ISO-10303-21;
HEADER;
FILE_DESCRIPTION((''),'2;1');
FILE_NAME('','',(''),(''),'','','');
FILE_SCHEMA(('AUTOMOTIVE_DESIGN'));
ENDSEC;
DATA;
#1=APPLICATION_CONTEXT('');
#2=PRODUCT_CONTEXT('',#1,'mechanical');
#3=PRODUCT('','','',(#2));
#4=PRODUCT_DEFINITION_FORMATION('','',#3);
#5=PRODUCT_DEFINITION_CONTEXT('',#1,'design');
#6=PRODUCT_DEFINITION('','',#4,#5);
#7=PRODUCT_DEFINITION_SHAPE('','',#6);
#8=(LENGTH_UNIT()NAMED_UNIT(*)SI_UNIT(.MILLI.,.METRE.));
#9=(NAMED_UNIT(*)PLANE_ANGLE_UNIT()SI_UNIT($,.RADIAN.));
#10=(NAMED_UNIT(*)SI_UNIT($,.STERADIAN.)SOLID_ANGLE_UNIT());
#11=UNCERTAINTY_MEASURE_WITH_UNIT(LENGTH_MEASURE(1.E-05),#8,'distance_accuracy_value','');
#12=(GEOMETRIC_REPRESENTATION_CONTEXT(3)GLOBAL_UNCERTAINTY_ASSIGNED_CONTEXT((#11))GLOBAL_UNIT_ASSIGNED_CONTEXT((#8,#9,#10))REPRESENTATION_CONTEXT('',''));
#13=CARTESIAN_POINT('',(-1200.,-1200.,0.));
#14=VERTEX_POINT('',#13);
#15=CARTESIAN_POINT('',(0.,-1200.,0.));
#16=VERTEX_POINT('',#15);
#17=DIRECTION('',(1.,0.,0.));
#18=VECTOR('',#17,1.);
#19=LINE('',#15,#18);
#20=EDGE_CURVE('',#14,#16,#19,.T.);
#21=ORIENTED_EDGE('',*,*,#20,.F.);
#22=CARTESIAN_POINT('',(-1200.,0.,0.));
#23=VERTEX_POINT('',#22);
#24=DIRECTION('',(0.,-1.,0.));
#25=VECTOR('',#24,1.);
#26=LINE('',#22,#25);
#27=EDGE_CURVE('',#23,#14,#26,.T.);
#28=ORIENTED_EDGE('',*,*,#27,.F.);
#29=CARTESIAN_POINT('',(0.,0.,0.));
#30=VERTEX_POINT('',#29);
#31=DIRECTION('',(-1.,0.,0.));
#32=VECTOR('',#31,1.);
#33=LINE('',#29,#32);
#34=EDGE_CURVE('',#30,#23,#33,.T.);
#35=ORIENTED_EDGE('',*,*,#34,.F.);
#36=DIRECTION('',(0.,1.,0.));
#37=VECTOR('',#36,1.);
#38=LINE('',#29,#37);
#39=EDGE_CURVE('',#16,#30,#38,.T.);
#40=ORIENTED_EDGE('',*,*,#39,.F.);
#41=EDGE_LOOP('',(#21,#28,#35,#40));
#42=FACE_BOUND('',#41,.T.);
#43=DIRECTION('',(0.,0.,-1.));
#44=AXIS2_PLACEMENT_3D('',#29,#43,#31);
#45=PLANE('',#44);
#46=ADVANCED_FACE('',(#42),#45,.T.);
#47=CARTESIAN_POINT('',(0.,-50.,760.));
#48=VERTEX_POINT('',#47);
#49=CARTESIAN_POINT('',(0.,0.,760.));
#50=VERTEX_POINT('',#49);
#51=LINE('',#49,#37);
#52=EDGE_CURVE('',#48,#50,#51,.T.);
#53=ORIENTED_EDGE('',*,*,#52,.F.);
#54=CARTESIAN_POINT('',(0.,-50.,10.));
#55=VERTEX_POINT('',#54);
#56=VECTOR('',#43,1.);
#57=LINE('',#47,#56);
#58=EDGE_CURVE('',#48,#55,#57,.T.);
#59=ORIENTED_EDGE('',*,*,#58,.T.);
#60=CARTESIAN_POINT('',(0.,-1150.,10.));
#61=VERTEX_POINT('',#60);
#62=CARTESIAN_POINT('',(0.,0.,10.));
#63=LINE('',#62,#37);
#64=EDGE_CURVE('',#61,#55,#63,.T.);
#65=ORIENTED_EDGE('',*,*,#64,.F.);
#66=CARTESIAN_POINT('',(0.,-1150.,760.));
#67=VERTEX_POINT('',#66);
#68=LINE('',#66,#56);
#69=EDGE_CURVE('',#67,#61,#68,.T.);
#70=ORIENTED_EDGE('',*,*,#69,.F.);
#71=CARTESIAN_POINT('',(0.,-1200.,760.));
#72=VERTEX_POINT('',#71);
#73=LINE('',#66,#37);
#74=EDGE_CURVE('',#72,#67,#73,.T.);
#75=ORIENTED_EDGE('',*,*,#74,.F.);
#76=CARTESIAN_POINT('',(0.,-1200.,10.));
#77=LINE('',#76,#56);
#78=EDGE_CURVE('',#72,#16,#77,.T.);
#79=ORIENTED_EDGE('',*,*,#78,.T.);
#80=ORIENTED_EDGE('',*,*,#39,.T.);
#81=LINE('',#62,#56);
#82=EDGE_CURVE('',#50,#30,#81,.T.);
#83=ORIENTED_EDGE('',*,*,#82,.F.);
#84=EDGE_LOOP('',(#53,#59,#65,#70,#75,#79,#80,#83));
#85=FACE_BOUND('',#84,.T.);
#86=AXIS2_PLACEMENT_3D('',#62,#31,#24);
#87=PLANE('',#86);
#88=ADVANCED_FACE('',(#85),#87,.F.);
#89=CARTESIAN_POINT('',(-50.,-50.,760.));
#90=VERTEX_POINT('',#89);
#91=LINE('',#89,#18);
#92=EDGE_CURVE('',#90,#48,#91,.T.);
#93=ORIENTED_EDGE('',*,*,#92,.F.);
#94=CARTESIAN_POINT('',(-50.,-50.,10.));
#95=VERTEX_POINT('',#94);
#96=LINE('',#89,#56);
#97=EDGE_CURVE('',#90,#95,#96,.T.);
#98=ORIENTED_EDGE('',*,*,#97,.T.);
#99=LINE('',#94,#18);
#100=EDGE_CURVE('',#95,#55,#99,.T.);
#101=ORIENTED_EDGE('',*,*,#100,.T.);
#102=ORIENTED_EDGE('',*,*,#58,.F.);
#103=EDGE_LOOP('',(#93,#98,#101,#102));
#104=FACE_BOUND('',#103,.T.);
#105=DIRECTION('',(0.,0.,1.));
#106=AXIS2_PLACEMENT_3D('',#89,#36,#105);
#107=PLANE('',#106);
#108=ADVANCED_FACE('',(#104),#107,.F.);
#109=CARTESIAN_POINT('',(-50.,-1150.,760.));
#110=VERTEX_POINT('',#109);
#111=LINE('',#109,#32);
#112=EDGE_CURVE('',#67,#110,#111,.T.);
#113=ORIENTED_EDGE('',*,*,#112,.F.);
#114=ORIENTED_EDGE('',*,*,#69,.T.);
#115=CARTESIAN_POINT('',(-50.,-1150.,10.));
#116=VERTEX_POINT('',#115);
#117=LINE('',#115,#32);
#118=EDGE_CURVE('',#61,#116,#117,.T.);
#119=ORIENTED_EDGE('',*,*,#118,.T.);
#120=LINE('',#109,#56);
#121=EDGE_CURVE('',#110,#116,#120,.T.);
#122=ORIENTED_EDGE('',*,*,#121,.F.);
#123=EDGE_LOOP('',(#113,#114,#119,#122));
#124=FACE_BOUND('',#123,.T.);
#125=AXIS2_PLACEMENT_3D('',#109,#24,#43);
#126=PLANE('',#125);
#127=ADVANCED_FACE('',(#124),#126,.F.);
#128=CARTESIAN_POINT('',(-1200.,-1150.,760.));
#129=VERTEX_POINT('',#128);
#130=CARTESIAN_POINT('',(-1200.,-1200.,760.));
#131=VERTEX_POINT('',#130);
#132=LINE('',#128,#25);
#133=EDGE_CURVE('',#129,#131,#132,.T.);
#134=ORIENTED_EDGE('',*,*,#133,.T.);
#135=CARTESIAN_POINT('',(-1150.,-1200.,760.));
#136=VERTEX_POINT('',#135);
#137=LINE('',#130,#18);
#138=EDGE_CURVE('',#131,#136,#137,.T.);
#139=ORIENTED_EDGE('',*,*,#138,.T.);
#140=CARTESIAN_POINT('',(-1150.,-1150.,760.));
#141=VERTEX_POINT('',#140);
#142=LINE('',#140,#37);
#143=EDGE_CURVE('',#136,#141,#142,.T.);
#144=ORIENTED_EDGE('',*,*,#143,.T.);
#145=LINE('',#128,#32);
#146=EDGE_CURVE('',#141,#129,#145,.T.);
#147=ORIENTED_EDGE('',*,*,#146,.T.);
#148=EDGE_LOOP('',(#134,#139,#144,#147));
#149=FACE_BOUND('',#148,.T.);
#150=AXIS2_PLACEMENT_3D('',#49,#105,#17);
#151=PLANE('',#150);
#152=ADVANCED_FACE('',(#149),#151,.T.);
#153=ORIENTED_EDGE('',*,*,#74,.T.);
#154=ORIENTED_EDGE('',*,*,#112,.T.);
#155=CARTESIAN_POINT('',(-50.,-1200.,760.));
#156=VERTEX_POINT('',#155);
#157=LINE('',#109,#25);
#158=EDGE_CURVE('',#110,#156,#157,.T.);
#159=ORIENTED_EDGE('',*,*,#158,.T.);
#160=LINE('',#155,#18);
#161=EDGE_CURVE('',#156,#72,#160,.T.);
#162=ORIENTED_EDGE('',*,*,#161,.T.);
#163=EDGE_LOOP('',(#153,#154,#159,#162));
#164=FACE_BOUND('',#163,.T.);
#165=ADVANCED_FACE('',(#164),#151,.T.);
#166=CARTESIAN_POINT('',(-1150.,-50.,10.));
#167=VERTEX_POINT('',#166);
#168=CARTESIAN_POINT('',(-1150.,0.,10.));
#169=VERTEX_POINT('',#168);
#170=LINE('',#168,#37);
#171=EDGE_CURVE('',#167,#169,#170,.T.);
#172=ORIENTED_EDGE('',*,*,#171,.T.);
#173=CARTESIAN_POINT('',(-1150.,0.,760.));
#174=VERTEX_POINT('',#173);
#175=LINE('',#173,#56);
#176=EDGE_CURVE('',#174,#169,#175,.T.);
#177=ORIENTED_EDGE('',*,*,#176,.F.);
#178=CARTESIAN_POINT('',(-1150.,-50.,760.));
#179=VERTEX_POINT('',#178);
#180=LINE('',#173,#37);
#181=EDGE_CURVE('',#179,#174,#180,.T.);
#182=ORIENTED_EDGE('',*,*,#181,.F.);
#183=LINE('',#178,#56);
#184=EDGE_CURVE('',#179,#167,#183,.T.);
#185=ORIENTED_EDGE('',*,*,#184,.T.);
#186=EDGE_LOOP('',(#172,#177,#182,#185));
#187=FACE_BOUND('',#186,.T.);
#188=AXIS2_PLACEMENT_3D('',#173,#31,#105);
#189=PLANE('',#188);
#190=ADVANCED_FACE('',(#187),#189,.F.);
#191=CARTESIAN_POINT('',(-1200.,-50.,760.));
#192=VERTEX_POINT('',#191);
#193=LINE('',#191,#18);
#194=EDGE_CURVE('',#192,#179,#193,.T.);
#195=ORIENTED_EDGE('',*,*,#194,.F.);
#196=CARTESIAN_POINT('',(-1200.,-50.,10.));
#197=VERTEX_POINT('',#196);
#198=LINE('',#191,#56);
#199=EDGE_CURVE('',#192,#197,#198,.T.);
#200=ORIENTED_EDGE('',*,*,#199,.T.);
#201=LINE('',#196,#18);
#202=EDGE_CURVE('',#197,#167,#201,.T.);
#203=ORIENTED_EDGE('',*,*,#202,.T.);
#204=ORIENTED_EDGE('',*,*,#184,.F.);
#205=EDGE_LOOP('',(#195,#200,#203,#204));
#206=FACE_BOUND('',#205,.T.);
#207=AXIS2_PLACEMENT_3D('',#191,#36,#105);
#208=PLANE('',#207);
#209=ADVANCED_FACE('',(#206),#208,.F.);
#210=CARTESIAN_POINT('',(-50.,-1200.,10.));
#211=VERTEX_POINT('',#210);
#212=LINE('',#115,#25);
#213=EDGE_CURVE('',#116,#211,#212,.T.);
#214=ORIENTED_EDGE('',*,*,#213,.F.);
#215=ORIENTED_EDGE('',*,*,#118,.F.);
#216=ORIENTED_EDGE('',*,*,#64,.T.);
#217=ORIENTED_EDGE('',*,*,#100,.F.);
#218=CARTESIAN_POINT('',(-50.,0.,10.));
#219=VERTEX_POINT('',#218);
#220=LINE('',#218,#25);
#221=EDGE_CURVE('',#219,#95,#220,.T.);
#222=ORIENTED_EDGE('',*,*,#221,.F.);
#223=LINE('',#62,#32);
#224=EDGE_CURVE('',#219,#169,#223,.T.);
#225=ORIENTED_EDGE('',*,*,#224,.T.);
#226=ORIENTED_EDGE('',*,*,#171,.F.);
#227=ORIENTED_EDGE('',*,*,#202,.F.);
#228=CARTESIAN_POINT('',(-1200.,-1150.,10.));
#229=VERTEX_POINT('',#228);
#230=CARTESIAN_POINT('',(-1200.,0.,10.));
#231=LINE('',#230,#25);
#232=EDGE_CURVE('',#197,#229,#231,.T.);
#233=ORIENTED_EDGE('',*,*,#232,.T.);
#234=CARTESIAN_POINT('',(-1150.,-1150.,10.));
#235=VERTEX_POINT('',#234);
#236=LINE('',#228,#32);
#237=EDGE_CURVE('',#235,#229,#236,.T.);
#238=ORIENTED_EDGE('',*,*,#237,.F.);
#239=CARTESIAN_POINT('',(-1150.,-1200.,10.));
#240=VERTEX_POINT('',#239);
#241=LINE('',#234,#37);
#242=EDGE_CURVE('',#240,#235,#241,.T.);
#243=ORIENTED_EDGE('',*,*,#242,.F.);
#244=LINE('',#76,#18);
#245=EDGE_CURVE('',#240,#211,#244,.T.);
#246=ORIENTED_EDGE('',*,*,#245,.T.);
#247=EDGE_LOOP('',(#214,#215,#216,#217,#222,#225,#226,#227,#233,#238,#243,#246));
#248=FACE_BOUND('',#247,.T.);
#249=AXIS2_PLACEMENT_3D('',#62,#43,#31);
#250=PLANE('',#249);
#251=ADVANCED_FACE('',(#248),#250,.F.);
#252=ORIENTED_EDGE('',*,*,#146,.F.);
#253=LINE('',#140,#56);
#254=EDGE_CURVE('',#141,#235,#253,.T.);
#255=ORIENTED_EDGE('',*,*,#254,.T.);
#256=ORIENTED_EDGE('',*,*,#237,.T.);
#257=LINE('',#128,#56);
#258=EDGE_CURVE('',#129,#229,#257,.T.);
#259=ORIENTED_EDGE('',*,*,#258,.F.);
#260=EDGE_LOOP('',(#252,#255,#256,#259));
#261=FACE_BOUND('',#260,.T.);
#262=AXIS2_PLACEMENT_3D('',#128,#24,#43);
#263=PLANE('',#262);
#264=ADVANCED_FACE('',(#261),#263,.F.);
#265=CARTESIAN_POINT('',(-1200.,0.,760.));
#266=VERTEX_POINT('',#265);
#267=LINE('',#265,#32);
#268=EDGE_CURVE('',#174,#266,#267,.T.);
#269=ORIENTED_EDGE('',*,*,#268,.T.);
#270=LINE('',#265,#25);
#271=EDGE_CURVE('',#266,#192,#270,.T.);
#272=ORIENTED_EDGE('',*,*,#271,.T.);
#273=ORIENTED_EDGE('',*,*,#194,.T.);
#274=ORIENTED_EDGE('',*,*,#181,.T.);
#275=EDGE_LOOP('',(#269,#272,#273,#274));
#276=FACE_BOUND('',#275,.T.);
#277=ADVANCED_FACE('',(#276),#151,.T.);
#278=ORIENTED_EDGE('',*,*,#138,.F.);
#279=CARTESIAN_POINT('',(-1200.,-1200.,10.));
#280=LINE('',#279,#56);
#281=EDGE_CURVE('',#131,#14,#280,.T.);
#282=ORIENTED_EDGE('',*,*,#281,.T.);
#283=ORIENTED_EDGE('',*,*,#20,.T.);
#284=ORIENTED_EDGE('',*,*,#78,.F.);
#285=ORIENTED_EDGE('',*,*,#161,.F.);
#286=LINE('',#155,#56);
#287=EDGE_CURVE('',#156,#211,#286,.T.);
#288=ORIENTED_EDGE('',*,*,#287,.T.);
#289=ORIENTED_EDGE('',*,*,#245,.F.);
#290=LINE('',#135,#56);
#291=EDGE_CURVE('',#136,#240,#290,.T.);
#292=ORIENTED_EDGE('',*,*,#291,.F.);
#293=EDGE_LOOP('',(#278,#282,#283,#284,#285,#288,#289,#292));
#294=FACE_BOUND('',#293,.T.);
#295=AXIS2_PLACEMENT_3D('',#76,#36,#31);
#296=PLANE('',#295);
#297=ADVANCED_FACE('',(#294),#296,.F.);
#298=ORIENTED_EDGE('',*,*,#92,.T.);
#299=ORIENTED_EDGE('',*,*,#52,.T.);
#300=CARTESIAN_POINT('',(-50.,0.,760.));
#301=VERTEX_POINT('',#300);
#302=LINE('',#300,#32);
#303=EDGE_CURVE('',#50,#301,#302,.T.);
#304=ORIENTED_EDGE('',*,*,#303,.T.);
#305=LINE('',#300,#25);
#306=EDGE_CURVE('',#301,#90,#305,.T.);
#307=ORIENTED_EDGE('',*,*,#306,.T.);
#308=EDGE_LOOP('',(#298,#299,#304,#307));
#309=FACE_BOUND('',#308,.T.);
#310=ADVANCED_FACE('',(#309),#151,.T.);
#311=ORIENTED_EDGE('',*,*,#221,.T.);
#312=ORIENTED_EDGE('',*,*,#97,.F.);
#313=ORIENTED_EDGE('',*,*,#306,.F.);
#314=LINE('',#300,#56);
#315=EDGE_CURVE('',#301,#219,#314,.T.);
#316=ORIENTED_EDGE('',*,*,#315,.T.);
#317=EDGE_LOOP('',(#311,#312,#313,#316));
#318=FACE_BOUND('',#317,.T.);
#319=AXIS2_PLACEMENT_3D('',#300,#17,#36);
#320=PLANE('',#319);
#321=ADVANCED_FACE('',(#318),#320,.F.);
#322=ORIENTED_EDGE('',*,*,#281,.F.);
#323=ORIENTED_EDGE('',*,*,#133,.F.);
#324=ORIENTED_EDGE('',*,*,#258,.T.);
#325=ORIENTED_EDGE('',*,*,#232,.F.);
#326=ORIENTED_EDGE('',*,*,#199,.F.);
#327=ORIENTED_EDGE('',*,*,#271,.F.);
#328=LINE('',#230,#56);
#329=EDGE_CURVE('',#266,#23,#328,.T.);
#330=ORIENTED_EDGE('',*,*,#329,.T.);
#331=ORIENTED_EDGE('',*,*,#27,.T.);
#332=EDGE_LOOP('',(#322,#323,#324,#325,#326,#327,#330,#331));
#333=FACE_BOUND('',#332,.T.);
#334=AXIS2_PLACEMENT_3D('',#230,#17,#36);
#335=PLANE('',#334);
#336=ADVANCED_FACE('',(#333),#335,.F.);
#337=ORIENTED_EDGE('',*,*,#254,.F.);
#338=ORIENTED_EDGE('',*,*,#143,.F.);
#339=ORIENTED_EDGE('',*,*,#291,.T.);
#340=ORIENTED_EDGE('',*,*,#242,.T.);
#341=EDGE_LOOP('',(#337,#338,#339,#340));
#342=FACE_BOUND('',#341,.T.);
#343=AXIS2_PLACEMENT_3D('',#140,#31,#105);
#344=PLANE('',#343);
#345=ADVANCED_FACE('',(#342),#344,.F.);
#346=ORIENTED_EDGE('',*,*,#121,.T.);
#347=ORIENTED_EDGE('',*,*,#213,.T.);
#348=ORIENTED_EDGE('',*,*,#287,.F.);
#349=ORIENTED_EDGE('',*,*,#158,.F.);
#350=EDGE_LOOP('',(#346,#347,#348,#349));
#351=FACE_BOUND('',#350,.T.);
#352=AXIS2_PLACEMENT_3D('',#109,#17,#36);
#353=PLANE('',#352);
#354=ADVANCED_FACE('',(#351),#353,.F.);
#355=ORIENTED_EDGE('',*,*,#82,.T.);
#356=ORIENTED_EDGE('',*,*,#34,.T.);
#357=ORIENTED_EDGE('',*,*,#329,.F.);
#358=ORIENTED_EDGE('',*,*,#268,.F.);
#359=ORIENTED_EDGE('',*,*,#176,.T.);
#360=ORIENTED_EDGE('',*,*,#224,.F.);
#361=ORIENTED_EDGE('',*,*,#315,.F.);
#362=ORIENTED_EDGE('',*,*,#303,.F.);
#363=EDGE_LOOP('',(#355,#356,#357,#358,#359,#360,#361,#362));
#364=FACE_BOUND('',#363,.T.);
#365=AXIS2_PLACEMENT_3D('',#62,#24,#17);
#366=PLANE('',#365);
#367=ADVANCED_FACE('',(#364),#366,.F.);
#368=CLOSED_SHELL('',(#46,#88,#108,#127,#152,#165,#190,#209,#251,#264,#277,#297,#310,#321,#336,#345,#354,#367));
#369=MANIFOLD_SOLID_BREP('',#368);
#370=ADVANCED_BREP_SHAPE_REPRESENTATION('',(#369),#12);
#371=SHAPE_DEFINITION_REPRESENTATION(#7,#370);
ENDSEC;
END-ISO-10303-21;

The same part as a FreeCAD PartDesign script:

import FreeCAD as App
import Part
import Sketcher
from FreeCAD import Vector

doc = App.newDocument("Part")
body = doc.addObject("PartDesign::Body", "Body")

# Sketch on XY plane
sketch1 = body.newObject("Sketcher::SketchObject", "Sketch")
sketch1.AttachmentSupport = (doc.getObject("XY_Plane"), [""])
sketch1.MapMode = "FlatFace"
sketch1.addGeometry([
    Part.LineSegment(Vector(-1200, 0, 0), Vector(-1200, -1200, 0)),
    Part.LineSegment(Vector(-1200, -1200, 0), Vector(0, -1200, 0)),
    Part.LineSegment(Vector(0, -1200, 0), Vector(0, 0, 0)),
    Part.LineSegment(Vector(0, 0, 0), Vector(-1200, 0, 0)),
], False)
sketch1.addConstraint([
    Sketcher.Constraint("Coincident", 0, 2, 1, 1),
    Sketcher.Constraint("Coincident", 1, 2, 2, 1),
    Sketcher.Constraint("Coincident", 2, 2, 3, 1),
    Sketcher.Constraint("Coincident", 3, 2, 0, 1),
    Sketcher.Constraint("Vertical", 0),
    Sketcher.Constraint("Horizontal", 1),
    Sketcher.Constraint("Vertical", 2),
    Sketcher.Constraint("Horizontal", 3),
    Sketcher.Constraint("Coincident", 2, 2, -1, 1),
    Sketcher.Constraint("Equal", 3, 0),
    Sketcher.Constraint("DistanceX", 1, 1, 1, 2, 1200.0),
])
pad1 = body.newObject("PartDesign::Pad", "Pad")
pad1.Profile = sketch1
pad1.Length = 10

# Sketch on XY plane
sketch2 = body.newObject("Sketcher::SketchObject", "Sketch001")
sketch2.AttachmentSupport = (doc.getObject("XY_Plane"), [""])
sketch2.MapMode = "FlatFace"
sketch2.AttachmentOffset = App.Placement(Vector(0, 0, 10), App.Rotation())
sketch2.addGeometry([
    Part.LineSegment(Vector(-1200, -1150, 0), Vector(-1200, -1200, 0)),  # 0
    Part.LineSegment(Vector(-1200, -1200, 0), Vector(-1150, -1200, 0)),  # 1
    Part.LineSegment(Vector(-1150, -1200, 0), Vector(-1150, -1150, 0)),  # 2
    Part.LineSegment(Vector(-1150, -1150, 0), Vector(-1200, -1150, 0)),  # 3
    Part.LineSegment(Vector(-1200, 0, 0), Vector(-1200, -50, 0)),  # 4
    Part.LineSegment(Vector(-1200, -50, 0), Vector(-1150, -50, 0)),  # 5
    Part.LineSegment(Vector(-1150, -50, 0), Vector(-1150, 0, 0)),  # 6
    Part.LineSegment(Vector(-1150, 0, 0), Vector(-1200, 0, 0)),  # 7
    Part.LineSegment(Vector(-50, -1150, 0), Vector(-50, -1200, 0)),  # 8
    Part.LineSegment(Vector(-50, -1200, 0), Vector(0, -1200, 0)),  # 9
    Part.LineSegment(Vector(0, -1200, 0), Vector(0, -1150, 0)),  # 10
    Part.LineSegment(Vector(0, -1150, 0), Vector(-50, -1150, 0)),  # 11
    Part.LineSegment(Vector(-50, 0, 0), Vector(-50, -50, 0)),  # 12
    Part.LineSegment(Vector(-50, -50, 0), Vector(0, -50, 0)),  # 13
    Part.LineSegment(Vector(0, -50, 0), Vector(0, 0, 0)),  # 14
    Part.LineSegment(Vector(0, 0, 0), Vector(-50, 0, 0)),  # 15
], False)
sketch2.addConstraint([
    Sketcher.Constraint("Coincident", 0, 2, 1, 1),
    Sketcher.Constraint("Coincident", 1, 2, 2, 1),
    Sketcher.Constraint("Coincident", 2, 2, 3, 1),
    Sketcher.Constraint("Coincident", 3, 2, 0, 1),
    Sketcher.Constraint("Coincident", 4, 2, 5, 1),
    Sketcher.Constraint("Coincident", 5, 2, 6, 1),
    Sketcher.Constraint("Coincident", 6, 2, 7, 1),
    Sketcher.Constraint("Coincident", 7, 2, 4, 1),
    Sketcher.Constraint("Coincident", 8, 2, 9, 1),
    Sketcher.Constraint("Coincident", 9, 2, 10, 1),
    Sketcher.Constraint("Coincident", 10, 2, 11, 1),
    Sketcher.Constraint("Coincident", 11, 2, 8, 1),
    Sketcher.Constraint("Coincident", 12, 2, 13, 1),
    Sketcher.Constraint("Coincident", 13, 2, 14, 1),
    Sketcher.Constraint("Coincident", 14, 2, 15, 1),
    Sketcher.Constraint("Coincident", 15, 2, 12, 1),
    Sketcher.Constraint("Vertical", 0),
    Sketcher.Constraint("Horizontal", 1),
    Sketcher.Constraint("Vertical", 2),
    Sketcher.Constraint("Horizontal", 3),
    Sketcher.Constraint("Vertical", 4),
    Sketcher.Constraint("Horizontal", 5),
    Sketcher.Constraint("Vertical", 6),
    Sketcher.Constraint("Horizontal", 7),
    Sketcher.Constraint("Vertical", 8),
    Sketcher.Constraint("Horizontal", 9),
    Sketcher.Constraint("Vertical", 10),
    Sketcher.Constraint("Horizontal", 11),
    Sketcher.Constraint("Vertical", 12),
    Sketcher.Constraint("Horizontal", 13),
    Sketcher.Constraint("Vertical", 14),
    Sketcher.Constraint("Horizontal", 15),
    Sketcher.Constraint("Coincident", 14, 2, -1, 1),
    Sketcher.Constraint("PointOnObject", 6, 2, -1),
    Sketcher.Constraint("PointOnObject", 9, 2, -2),
    Sketcher.Constraint("Horizontal", 1, 2, 8, 2),
    Sketcher.Constraint("Horizontal", 3, 2, 10, 2),
    Sketcher.Constraint("Horizontal", 5, 2, 12, 2),
    Sketcher.Constraint("Vertical", 3, 2, 4, 2),
    Sketcher.Constraint("Vertical", 2, 2, 5, 2),
    Sketcher.Constraint("Vertical", 11, 2, 12, 2),
    Sketcher.Constraint("Equal", 7, 9),
    Sketcher.Constraint("Equal", 15, 0),
    Sketcher.Constraint("Equal", 2, 4),
    Sketcher.Constraint("DistanceX", 1, 1, 1, 2, 50.0),
    Sketcher.Constraint("DistanceX", 0, 2, -1, 1, 1200.0),
    Sketcher.Constraint("DistanceY", 0, 2, -1, 1, 1200.0),
])
pad2 = body.newObject("PartDesign::Pad", "Pad001")
pad2.Profile = sketch2
pad2.Length = 750

doc.recompute()
